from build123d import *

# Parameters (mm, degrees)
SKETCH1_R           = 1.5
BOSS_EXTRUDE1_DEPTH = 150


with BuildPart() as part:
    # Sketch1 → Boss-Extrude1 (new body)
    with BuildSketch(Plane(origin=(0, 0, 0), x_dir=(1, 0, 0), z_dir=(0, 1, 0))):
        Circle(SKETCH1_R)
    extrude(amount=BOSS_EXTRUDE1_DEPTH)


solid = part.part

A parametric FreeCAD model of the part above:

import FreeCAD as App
import Part
import Sketcher

V = App.Vector
Q = App.Units.Quantity

doc = App.newDocument("Part")
params = doc.addObject("Spreadsheet::Sheet", "Params")
for row, (alias, value) in enumerate([
    ("sketch1_diameter", "3 mm"),
    ("pad1_length", "150 mm"),
], start=1):
    params.set(f"A{row}", alias)
    params.set(f"B{row}", "=" + value)
    params.setAlias(f"B{row}", alias)

body = doc.addObject("PartDesign::Body", "Body")

# Sketch on XZ plane
sketch1 = body.newObject("Sketcher::SketchObject", "Sketch")
sketch1.AttachmentSupport = (doc.getObject("XZ_Plane"), [""])
sketch1.MapMode = "FlatFace"
sketch1.addGeometry(Part.Circle(V(0, 0, 0), V(0, 0, 1), 1.5), False)
sketch1.addConstraint([
    Sketcher.Constraint("Coincident", 0, 3, -1, 1),
    Sketcher.Constraint("Diameter", 0, Q("3 mm")),
])
sketch1.setExpression("Constraints[1]", "Params.sketch1_diameter")
pad1 = body.newObject("PartDesign::Pad", "Pad")
pad1.Profile = sketch1
pad1.setExpression("Length", "Params.pad1_length")
pad1.Reversed = True

doc.recompute()
